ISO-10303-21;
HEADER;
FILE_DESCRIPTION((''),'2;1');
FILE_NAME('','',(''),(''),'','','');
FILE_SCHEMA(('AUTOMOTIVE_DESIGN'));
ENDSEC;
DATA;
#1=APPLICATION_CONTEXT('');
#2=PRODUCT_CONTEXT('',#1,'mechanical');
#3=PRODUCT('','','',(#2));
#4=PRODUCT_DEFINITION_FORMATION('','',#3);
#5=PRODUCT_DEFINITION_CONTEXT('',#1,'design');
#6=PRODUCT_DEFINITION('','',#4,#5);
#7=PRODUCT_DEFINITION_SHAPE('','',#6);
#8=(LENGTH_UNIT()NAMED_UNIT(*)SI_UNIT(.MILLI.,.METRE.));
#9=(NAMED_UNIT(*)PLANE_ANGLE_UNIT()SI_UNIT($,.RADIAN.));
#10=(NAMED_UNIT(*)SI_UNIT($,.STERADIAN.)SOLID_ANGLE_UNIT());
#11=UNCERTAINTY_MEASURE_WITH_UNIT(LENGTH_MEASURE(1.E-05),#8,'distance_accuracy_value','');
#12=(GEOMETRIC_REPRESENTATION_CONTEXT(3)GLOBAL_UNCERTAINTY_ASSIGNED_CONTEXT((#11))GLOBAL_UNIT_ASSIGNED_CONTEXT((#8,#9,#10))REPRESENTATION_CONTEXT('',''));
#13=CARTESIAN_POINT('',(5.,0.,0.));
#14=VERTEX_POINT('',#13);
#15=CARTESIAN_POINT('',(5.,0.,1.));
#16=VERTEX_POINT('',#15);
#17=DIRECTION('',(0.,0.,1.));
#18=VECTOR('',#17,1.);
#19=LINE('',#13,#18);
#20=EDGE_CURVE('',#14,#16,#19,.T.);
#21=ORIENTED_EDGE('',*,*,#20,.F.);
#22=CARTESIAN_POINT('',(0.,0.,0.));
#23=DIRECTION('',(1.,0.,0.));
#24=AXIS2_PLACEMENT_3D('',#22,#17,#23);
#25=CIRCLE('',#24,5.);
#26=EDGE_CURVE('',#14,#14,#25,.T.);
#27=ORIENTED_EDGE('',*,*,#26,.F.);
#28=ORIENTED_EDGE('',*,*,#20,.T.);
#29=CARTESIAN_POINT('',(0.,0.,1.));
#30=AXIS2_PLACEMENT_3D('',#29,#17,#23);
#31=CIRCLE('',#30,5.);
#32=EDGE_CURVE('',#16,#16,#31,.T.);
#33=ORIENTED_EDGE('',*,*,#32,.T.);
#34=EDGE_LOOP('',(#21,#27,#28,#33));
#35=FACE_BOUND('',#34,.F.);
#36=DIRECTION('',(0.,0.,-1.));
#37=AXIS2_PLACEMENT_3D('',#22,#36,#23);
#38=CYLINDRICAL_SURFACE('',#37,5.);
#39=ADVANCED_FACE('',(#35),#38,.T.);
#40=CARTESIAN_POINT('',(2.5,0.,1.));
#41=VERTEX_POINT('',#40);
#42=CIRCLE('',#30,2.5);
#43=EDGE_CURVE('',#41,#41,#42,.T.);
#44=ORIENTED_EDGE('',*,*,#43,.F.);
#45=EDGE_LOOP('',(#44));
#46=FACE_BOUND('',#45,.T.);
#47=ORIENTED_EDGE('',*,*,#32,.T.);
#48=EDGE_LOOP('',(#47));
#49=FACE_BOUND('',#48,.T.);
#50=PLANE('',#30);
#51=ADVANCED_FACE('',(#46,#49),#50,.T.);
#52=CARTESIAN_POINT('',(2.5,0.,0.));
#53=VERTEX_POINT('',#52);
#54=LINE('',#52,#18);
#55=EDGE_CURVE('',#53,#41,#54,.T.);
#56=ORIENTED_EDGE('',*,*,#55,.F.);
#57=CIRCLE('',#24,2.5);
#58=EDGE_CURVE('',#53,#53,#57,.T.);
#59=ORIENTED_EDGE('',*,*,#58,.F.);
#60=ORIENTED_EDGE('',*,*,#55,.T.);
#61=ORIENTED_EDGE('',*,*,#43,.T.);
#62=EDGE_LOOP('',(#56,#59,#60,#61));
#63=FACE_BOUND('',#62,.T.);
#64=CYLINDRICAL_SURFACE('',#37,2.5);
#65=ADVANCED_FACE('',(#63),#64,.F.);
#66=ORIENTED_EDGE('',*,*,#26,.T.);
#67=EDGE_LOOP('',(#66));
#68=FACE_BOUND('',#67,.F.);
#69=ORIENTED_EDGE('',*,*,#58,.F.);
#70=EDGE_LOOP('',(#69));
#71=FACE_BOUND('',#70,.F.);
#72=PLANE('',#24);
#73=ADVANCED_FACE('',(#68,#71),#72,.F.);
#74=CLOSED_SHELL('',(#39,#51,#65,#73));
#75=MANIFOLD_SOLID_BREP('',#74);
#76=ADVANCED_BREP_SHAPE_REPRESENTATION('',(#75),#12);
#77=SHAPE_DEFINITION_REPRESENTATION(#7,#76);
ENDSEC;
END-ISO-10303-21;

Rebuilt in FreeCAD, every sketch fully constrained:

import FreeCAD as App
import Part
import Sketcher
Q = App.Units.Quantity

doc = App.newDocument("Part")
body = doc.addObject("PartDesign::Body", "Body")

# Sketch on XY plane
sketch1 = body.newObject("Sketcher::SketchObject", "Sketch")
sketch1.AttachmentSupport = (doc.getObject("XY_Plane"), [""])
sketch1.MapMode = "FlatFace"
sketch1.addGeometry([
    Part.Circle(App.Vector(0, 0, 0), App.Vector(0, 0, 1), 5),
    Part.Circle(App.Vector(0, 0, 0), App.Vector(0, 0, 1), 2.5),
], False)
sketch1.addConstraint([
    Sketcher.Constraint("Coincident", 0, 3, -1, 1),
    Sketcher.Constraint("Coincident", 1, 3, -1, 1),
    Sketcher.Constraint("Diameter", 0, Q("10 mm")),
    Sketcher.Constraint("Diameter", 1, Q("5 mm")),
])
pad1 = body.newObject("PartDesign::Pad", "Pad")
pad1.Profile = sketch1
pad1.Length = 1

doc.recompute()
